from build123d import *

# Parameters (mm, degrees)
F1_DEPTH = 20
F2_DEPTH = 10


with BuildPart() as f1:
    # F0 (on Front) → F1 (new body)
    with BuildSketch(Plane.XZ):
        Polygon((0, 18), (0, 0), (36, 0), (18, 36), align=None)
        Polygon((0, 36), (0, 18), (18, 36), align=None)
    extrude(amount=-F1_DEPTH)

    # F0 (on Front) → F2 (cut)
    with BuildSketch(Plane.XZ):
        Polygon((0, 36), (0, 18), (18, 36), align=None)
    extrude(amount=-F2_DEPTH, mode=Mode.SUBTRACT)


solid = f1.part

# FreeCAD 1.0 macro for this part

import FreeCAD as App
import Part
import Sketcher
Q = App.Units.Quantity


def add_polygon(sketch, points):
    """Adds a closed chain of lines whose ends are joined by coincident constraints."""
    first, n = sketch.GeometryCount, len(points)
    for a, b in zip(points, points[1:] + points[:1]):
        sketch.addGeometry(Part.LineSegment(App.Vector(*a, 0), App.Vector(*b, 0)), False)
    for i in range(n):
        sketch.addConstraint(Sketcher.Constraint("Coincident", first + i, 2, first + (i + 1) % n, 1))

doc = App.newDocument("Part")
body = doc.addObject("PartDesign::Body", "Body")

sketch1 = doc.addObject("Sketcher::SketchObject", "Sketch")
body.addObject(sketch1)
sketch1.AttachmentSupport = (doc.XZ_Plane, [""])
sketch1.MapMode = "FlatFace"
add_polygon(sketch1, [(0, 0), (36, 0), (18, 36), (0, 36)])
sketch1.addConstraint([
    Sketcher.Constraint("Horizontal", 0),
    Sketcher.Constraint("Horizontal", 2),
    Sketcher.Constraint("Vertical", 3),
    Sketcher.Constraint("Coincident", 3, 2, -1, 1),
    Sketcher.Constraint("Equal", 0, 3),
    Sketcher.Constraint("DistanceX", 0, 1, 0, 2, Q("36 mm")),
    Sketcher.Constraint("DistanceX", 2, 2, 2, 1, Q("18 mm")),
])
pad1 = doc.addObject("PartDesign::Pad", "Pad")
body.addObject(pad1)
pad1.Profile = sketch1
pad1.Length = 20
pad1.Reversed = True

sketch2 = doc.addObject("Sketcher::SketchObject", "Sketch001")
body.addObject(sketch2)
sketch2.AttachmentSupport = (doc.XZ_Plane, [""])
sketch2.MapMode = "FlatFace"
add_polygon(sketch2, [(0, 36), (0, 18), (18, 36)])
sketch2.addConstraint([
    Sketcher.Constraint("Vertical", 0),
    Sketcher.Constraint("Horizontal", 2),
    Sketcher.Constraint("PointOnObject", 0, 2, -2),
    Sketcher.Constraint("Equal", 2, 0),
    Sketcher.Constraint("DistanceX", 2, 2, 2, 1, Q("18 mm")),
    Sketcher.Constraint("DistanceY", -1, 1, 0, 2, Q("18 mm")),
])
pocket1 = doc.addObject("PartDesign::Pocket", "Pocket")
body.addObject(pocket1)
pocket1.Profile = sketch2
pocket1.Length = 10

doc.recompute()
